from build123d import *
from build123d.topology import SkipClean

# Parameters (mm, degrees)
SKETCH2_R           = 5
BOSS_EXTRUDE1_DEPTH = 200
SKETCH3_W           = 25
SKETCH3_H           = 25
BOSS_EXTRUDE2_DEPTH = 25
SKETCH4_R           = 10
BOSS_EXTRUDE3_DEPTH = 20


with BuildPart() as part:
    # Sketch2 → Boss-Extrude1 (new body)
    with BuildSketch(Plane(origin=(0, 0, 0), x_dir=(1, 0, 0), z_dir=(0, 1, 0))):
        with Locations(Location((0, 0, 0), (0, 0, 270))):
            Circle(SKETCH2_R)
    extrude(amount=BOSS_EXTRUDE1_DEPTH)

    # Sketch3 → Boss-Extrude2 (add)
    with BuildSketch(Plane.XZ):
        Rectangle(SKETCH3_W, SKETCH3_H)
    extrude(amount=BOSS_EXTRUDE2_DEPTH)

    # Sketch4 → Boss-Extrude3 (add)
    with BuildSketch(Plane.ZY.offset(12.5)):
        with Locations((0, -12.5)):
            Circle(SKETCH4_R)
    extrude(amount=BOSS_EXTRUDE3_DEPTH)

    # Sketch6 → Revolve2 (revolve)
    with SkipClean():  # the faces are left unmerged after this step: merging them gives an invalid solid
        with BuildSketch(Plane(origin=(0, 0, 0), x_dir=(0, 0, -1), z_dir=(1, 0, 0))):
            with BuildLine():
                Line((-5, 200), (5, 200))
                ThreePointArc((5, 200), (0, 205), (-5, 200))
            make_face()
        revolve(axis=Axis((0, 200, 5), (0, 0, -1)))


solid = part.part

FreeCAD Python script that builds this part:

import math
import FreeCAD as App
import Part
import Sketcher


def add_polygon(sketch, points):
    """Adds a closed chain of lines whose ends are joined by coincident constraints."""
    first, n = sketch.GeometryCount, len(points)
    for a, b in zip(points, points[1:] + points[:1]):
        sketch.addGeometry(Part.LineSegment(App.Vector(*a, 0), App.Vector(*b, 0)), False)
    for i in range(n):
        sketch.addConstraint(Sketcher.Constraint("Coincident", first + i, 2, first + (i + 1) % n, 1))

doc = App.newDocument("Part")
params = doc.addObject("Spreadsheet::Sheet", "Params")
for row, (alias, value) in enumerate([
    ("sketch1_diameter", "10 mm"),
    ("pad1_length", "200 mm"),
    ("sketch2_width", "25 mm"),
    ("pad2_length", "25 mm"),
    ("sketch3_diameter", "20 mm"),
    ("pad3_length", "20 mm"),
    ("sketch4_radius", "5 mm"),
    ("revolution_angle", "360 deg"),
], start=1):
    params.set(f"A{row}", alias)
    params.set(f"B{row}", "=" + value)
    params.setAlias(f"B{row}", alias)

body = doc.addObject("PartDesign::Body", "Body")

sketch1 = body.newObject("Sketcher::SketchObject", "Sketch")
sketch1.AttachmentSupport = (doc.getObject("XZ_Plane"), [""])
sketch1.MapMode = "FlatFace"
sketch1.addGeometry(Part.Circle(App.Vector(0, 0, 0), App.Vector(0, 0, 1), 5), False)
sketch1.addConstraint(Sketcher.Constraint("Coincident", 0, 3, -1, 1))
sketch1.addConstraint(Sketcher.Constraint("Diameter", 0, 10.0))
sketch1.setExpression("Constraints[1]", "Params.sketch1_diameter")
pad1 = body.newObject("PartDesign::Pad", "Pad")
pad1.Profile = sketch1
pad1.setExpression("Length", "Params.pad1_length")
pad1.Reversed = True

sketch2 = body.newObject("Sketcher::SketchObject", "Sketch001")
sketch2.AttachmentSupport = (doc.getObject("XZ_Plane"), [""])
sketch2.MapMode = "FlatFace"
add_polygon(sketch2, [(-12, 12), (-12, -12), (12, -12), (12, 12)])
sketch2.addConstraint(Sketcher.Constraint("Vertical", 0))
sketch2.addConstraint(Sketcher.Constraint("Horizontal", 1))
sketch2.addConstraint(Sketcher.Constraint("Vertical", 2))
sketch2.addConstraint(Sketcher.Constraint("Horizontal", 3))
sketch2.addConstraint(Sketcher.Constraint("Symmetric", 0, 2, 2, 2, -1, 1))
sketch2.addConstraint(Sketcher.Constraint("Equal", 3, 0))
sketch2.addConstraint(Sketcher.Constraint("DistanceX", 1, 1, 1, 2, 25.0))
sketch2.setExpression("Constraints[10]", "Params.sketch2_width")
pad2 = body.newObject("PartDesign::Pad", "Pad001")
pad2.Profile = sketch2
pad2.setExpression("Length", "Params.pad2_length")

sketch3 = body.newObject("Sketcher::SketchObject", "Sketch002")
sketch3.AttachmentSupport = (doc.getObject("YZ_Plane"), [""])
sketch3.MapMode = "FlatFace"
sketch3.AttachmentOffset = App.Placement(App.Vector(0, 0, -12.5), App.Rotation())
sketch3.addGeometry(Part.Circle(App.Vector(-12, 0, 0), App.Vector(0, 0, 1), 10), False)
sketch3.addConstraint(Sketcher.Constraint("PointOnObject", 0, 3, -1))
sketch3.addConstraint(Sketcher.Constraint("Diameter", 0, 20.0))
sketch3.addConstraint(Sketcher.Constraint("DistanceX", 0, 3, -1, 1, 12.5))
sketch3.setExpression("Constraints[1]", "Params.sketch3_diameter")
pad3 = body.newObject("PartDesign::Pad", "Pad002")
pad3.Profile = sketch3
pad3.setExpression("Length", "Params.pad3_length")
pad3.Reversed = True

sketch4 = body.newObject("Sketcher::SketchObject", "Sketch003")
sketch4.AttachmentSupport = (doc.getObject("YZ_Plane"), [""])
sketch4.MapMode = "FlatFace"
sketch4.addGeometry(Part.LineSegment(App.Vector(200, 5, 0), App.Vector(200, -5, 0)), False)
sketch4.addGeometry(Part.ArcOfCircle(Part.Circle(App.Vector(200, 0, 0), App.Vector(0, 0, 1), 5), math.radians(-90), math.radians(90)), False)
sketch4.addGeometry(Part.LineSegment(App.Vector(200, 5, 0), App.Vector(200, -5, 0)), True)
sketch4.addConstraint(Sketcher.Constraint("Coincident", 0, 1, 1, 2))
sketch4.addConstraint(Sketcher.Constraint("Coincident", 1, 1, 0, 2))
sketch4.addConstraint(Sketcher.Constraint("Vertical", 0))
sketch4.addConstraint(Sketcher.Constraint("Vertical", 2))
sketch4.addConstraint(Sketcher.Constraint("Coincident", 2, 1, 0, 1))
sketch4.addConstraint(Sketcher.Constraint("PointOnObject", 1, 3, -1))
sketch4.addConstraint(Sketcher.Constraint("Vertical", 1, 3, 0, 1))
sketch4.addConstraint(Sketcher.Constraint("Equal", 0, 2))
sketch4.addConstraint(Sketcher.Constraint("Radius", 1, 5.0))
sketch4.addConstraint(Sketcher.Constraint("DistanceX", -1, 1, 1, 3, 200.0))
sketch4.setExpression("Constraints[8]", "Params.sketch4_radius")
revolution = body.newObject("PartDesign::Revolution", "Revolution")
revolution.Profile = sketch4
revolution.ReferenceAxis = (sketch4, ["Axis0"])
revolution.setExpression("Angle", "Params.revolution_angle")

doc.recompute()
